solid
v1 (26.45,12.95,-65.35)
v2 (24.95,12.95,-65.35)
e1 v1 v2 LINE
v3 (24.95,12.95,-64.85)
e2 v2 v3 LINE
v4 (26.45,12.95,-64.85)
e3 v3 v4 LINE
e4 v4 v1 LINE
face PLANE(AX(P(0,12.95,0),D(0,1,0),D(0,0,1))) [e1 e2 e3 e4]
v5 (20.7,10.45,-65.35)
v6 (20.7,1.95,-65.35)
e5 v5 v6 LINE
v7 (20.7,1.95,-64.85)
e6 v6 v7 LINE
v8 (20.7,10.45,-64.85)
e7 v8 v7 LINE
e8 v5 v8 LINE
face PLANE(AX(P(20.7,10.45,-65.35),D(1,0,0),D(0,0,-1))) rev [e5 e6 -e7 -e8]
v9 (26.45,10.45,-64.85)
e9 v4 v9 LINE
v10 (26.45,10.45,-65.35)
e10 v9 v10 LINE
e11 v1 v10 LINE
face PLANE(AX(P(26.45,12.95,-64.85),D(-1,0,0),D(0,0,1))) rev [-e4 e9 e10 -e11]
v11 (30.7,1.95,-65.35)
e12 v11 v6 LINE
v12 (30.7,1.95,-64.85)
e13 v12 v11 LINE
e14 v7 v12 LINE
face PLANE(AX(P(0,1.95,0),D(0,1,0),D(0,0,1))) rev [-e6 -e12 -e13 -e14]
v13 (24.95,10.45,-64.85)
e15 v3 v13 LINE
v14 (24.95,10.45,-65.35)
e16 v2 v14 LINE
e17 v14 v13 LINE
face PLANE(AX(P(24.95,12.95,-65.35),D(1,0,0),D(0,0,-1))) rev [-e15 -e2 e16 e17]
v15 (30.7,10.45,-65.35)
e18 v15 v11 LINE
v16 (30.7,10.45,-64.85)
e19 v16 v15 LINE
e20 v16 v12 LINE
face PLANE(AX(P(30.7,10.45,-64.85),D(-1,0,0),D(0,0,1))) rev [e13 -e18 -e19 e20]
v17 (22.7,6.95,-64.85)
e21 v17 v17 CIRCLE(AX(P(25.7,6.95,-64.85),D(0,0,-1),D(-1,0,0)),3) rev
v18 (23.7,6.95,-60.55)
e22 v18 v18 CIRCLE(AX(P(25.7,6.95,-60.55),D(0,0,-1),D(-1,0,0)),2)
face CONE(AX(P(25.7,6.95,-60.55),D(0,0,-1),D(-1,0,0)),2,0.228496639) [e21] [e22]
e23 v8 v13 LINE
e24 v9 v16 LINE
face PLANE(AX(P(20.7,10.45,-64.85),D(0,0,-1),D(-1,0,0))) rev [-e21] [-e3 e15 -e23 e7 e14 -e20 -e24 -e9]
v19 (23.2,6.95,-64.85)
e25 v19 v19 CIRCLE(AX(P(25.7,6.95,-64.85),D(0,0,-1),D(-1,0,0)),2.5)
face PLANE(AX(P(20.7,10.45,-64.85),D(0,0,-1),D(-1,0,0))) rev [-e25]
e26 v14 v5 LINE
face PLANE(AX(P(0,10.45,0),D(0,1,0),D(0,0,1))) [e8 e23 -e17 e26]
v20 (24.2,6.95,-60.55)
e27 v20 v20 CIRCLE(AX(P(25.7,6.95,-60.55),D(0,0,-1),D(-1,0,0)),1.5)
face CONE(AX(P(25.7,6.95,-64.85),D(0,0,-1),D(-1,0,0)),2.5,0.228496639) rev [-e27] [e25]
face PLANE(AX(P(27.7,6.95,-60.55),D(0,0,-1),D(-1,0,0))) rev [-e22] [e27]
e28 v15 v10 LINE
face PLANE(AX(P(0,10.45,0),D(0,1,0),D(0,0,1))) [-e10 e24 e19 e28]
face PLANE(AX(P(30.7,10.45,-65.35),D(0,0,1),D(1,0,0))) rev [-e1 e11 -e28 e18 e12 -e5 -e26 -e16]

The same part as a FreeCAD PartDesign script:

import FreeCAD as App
import Part
import Sketcher
Q = App.Units.Quantity

doc = App.newDocument("Part")
params = doc.addObject("Spreadsheet::Sheet", "Params")
for row, (alias, value) in enumerate([
    ("sketch1_width", "10 mm"),
    ("sketch1_height", "0.5 mm"),
    ("pad1_length", "8.5 mm"),
    ("sketch2_width", "1.5 mm"),
    ("sketch2_height", "0.5 mm"),
    ("pad2_length", "2.5 mm"),
    ("sketch3_width", "0.5 mm"),
    ("sketch3_height", "4.3 mm"),
    ("revolution_angle", "360 deg"),
], start=1):
    params.set(f"A{row}", alias)
    params.set(f"B{row}", "=" + value)
    params.setAlias(f"B{row}", alias)

body = doc.addObject("PartDesign::Body", "Body")

sketch1 = body.newObject("Sketcher::SketchObject", "Sketch")
sketch1.AttachmentSupport = (doc.getObject("XZ_Plane"), [""])
sketch1.MapMode = "FlatFace"
sketch1.AttachmentOffset = App.Placement(App.Vector(0, 0, -1.95), App.Rotation())
sketch1.addGeometry(Part.LineSegment(App.Vector(20.7, -65.3, 0), App.Vector(20.7, -64.8, 0)), False)
sketch1.addGeometry(Part.LineSegment(App.Vector(20.7, -64.8, 0), App.Vector(30.7, -64.8, 0)), False)
sketch1.addGeometry(Part.LineSegment(App.Vector(30.7, -64.8, 0), App.Vector(30.7, -65.3, 0)), False)
sketch1.addGeometry(Part.LineSegment(App.Vector(30.7, -65.3, 0), App.Vector(20.7, -65.3, 0)), False)
sketch1.addConstraint(Sketcher.Constraint("Coincident", 0, 2, 1, 1))
sketch1.addConstraint(Sketcher.Constraint("Coincident", 1, 2, 2, 1))
sketch1.addConstraint(Sketcher.Constraint("Coincident", 2, 2, 3, 1))
sketch1.addConstraint(Sketcher.Constraint("Coincident", 3, 2, 0, 1))
sketch1.addConstraint(Sketcher.Constraint("Vertical", 0))
sketch1.addConstraint(Sketcher.Constraint("Horizontal", 1))
sketch1.addConstraint(Sketcher.Constraint("Vertical", 2))
sketch1.addConstraint(Sketcher.Constraint("Horizontal", 3))
sketch1.addConstraint(Sketcher.Constraint("DistanceX", 1, 1, 1, 2, Q("10 mm")))
sketch1.addConstraint(Sketcher.Constraint("DistanceY", 0, 1, 0, 2, Q("0.5 mm")))
sketch1.addConstraint(Sketcher.Constraint("DistanceX", -1, 1, 0, 2, Q("20.7 mm")))
sketch1.addConstraint(Sketcher.Constraint("DistanceY", 0, 2, -1, 1, Q("64.85 mm")))
sketch1.setExpression("Constraints[8]", "Params.sketch1_width")
sketch1.setExpression("Constraints[9]", "Params.sketch1_height")
pad1 = body.newObject("PartDesign::Pad", "Pad")
pad1.Profile = sketch1
pad1.setExpression("Length", "Params.pad1_length")
pad1.Reversed = True

sketch2 = body.newObject("Sketcher::SketchObject", "Sketch001")
sketch2.AttachmentSupport = (doc.getObject("XZ_Plane"), [""])
sketch2.MapMode = "FlatFace"
sketch2.AttachmentOffset = App.Placement(App.Vector(0, 0, -10.45), App.Rotation())
sketch2.addGeometry(Part.LineSegment(App.Vector(24.9, -65.3, 0), App.Vector(24.9, -64.8, 0)), False)
sketch2.addGeometry(Part.LineSegment(App.Vector(24.9, -64.8, 0), App.Vector(26.4, -64.8, 0)), False)
sketch2.addGeometry(Part.LineSegment(App.Vector(26.4, -64.8, 0), App.Vector(26.4, -65.3, 0)), False)
sketch2.addGeometry(Part.LineSegment(App.Vector(26.4, -65.3, 0), App.Vector(24.9, -65.3, 0)), False)
sketch2.addConstraint(Sketcher.Constraint("Coincident", 0, 2, 1, 1))
sketch2.addConstraint(Sketcher.Constraint("Coincident", 1, 2, 2, 1))
sketch2.addConstraint(Sketcher.Constraint("Coincident", 2, 2, 3, 1))
sketch2.addConstraint(Sketcher.Constraint("Coincident", 3, 2, 0, 1))
sketch2.addConstraint(Sketcher.Constraint("Vertical", 0))
sketch2.addConstraint(Sketcher.Constraint("Horizontal", 1))
sketch2.addConstraint(Sketcher.Constraint("Vertical", 2))
sketch2.addConstraint(Sketcher.Constraint("Horizontal", 3))
sketch2.addConstraint(Sketcher.Constraint("DistanceX", 1, 1, 1, 2, Q("1.5 mm")))
sketch2.addConstraint(Sketcher.Constraint("DistanceY", 0, 1, 0, 2, Q("0.5 mm")))
sketch2.addConstraint(Sketcher.Constraint("DistanceX", -1, 1, 0, 2, Q("24.95 mm")))
sketch2.addConstraint(Sketcher.Constraint("DistanceY", 0, 2, -1, 1, Q("64.85 mm")))
sketch2.setExpression("Constraints[8]", "Params.sketch2_width")
sketch2.setExpression("Constraints[9]", "Params.sketch2_height")
pad2 = body.newObject("PartDesign::Pad", "Pad001")
pad2.Profile = sketch2
pad2.setExpression("Length", "Params.pad2_length")
pad2.Reversed = True

sketch3 = body.newObject("Sketcher::SketchObject", "Sketch002")
sketch3.AttachmentSupport = (doc.getObject("XZ_Plane"), [""])
sketch3.MapMode = "FlatFace"
sketch3.AttachmentOffset = App.Placement(App.Vector(0, 0, -6.95), App.Rotation())
sketch3.addGeometry(Part.LineSegment(App.Vector(28.7, -64.8, 0), App.Vector(28.2, -64.8, 0)), False)
sketch3.addGeometry(Part.LineSegment(App.Vector(28.2, -64.8, 0), App.Vector(27.2, -60.5, 0)), False)
sketch3.addGeometry(Part.LineSegment(App.Vector(27.2, -60.5, 0), App.Vector(27.7, -60.5, 0)), False)
sketch3.addGeometry(Part.LineSegment(App.Vector(27.7, -60.5, 0), App.Vector(28.7, -64.8, 0)), False)
sketch3.addGeometry(Part.LineSegment(App.Vector(25.7, -64.8, 0), App.Vector(25.7, -60.5, 0)), True)
sketch3.addConstraint(Sketcher.Constraint("Coincident", 0, 2, 1, 1))
sketch3.addConstraint(Sketcher.Constraint("Coincident", 1, 2, 2, 1))
sketch3.addConstraint(Sketcher.Constraint("Coincident", 2, 2, 3, 1))
sketch3.addConstraint(Sketcher.Constraint("Coincident", 3, 2, 0, 1))
sketch3.addConstraint(Sketcher.Constraint("Horizontal", 0))
sketch3.addConstraint(Sketcher.Constraint("Horizontal", 2))
sketch3.addConstraint(Sketcher.Constraint("Vertical", 4))
sketch3.addConstraint(Sketcher.Constraint("Parallel", 1, 3))
sketch3.addConstraint(Sketcher.Constraint("Horizontal", 3, 2, 4, 1))
sketch3.addConstraint(Sketcher.Constraint("Horizontal", 2, 2, 4, 2))
sketch3.addConstraint(Sketcher.Constraint("DistanceX", 0, 2, 0, 1, Q("0.5 mm")))
sketch3.addConstraint(Sketcher.Constraint("DistanceY", 4, 1, 4, 2, Q("4.3 mm")))
sketch3.addConstraint(Sketcher.Constraint("DistanceX", 1, 2, 0, 2, Q("1 mm")))
sketch3.addConstraint(Sketcher.Constraint("DistanceX", 4, 1, 3, 2, Q("3 mm")))
sketch3.addConstraint(Sketcher.Constraint("DistanceX", -1, 1, 0, 2, Q("28.2 mm")))
sketch3.addConstraint(Sketcher.Constraint("DistanceY", 0, 2, -1, 1, Q("64.85 mm")))
sketch3.setExpression("Constraints[10]", "Params.sketch3_width")
sketch3.setExpression("Constraints[11]", "Params.sketch3_height")
revolution = body.newObject("PartDesign::Revolution", "Revolution")
revolution.Profile = sketch3
revolution.ReferenceAxis = (sketch3, ["Axis0"])
revolution.setExpression("Angle", "Params.revolution_angle")

doc.recompute()
